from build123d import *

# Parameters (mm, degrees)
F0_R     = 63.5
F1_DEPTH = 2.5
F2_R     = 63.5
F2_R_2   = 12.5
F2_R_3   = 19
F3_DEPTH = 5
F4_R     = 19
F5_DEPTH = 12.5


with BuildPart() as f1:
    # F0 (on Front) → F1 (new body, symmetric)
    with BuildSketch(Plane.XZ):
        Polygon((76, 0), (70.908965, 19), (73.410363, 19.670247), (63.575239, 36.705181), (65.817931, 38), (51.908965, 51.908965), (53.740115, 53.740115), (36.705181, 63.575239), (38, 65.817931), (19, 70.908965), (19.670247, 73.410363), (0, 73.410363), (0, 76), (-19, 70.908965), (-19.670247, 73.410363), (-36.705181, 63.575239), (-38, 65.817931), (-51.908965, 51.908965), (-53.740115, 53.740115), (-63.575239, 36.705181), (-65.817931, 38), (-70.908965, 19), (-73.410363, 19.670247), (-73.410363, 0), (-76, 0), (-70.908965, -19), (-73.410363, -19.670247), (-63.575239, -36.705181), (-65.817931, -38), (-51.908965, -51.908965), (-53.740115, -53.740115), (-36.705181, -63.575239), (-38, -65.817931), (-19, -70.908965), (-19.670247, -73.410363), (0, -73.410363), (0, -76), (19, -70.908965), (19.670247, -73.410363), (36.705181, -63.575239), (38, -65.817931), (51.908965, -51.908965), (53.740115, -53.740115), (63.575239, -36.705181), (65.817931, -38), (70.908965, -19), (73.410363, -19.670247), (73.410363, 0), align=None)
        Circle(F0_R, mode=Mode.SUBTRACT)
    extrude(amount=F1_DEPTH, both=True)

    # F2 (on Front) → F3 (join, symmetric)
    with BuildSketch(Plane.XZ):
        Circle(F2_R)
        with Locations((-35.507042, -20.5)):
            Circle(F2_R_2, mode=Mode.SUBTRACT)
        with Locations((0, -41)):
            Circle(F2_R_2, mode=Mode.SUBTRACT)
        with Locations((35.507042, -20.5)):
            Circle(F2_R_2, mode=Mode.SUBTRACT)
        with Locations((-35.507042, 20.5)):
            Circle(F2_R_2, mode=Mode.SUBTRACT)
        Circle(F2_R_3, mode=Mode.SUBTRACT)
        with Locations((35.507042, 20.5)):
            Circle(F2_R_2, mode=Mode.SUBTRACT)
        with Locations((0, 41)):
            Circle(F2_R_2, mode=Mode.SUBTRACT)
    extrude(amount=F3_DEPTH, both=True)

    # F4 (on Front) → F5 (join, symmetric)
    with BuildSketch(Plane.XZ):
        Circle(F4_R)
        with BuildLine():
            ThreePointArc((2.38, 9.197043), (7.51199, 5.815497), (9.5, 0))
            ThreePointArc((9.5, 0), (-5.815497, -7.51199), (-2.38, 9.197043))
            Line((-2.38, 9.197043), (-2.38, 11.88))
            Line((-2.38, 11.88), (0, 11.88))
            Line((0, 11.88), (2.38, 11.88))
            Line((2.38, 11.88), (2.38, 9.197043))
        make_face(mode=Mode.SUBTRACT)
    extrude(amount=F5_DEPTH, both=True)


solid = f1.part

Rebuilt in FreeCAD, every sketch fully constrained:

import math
import FreeCAD as App
import Part
import Sketcher
from FreeCAD import Vector
Q = App.Units.Quantity

doc = App.newDocument("Part")
body = doc.addObject("PartDesign::Body", "Body")

# Sketch on XZ plane
sketch1 = body.newObject("Sketcher::SketchObject", "Sketch")
sketch1.AttachmentSupport = (doc.getObject("XZ_Plane"), [""])
sketch1.MapMode = "FlatFace"
sketch1.addGeometry(Part.LineSegment(Vector(76, 0, 0), Vector(70.908965, 19, 0)), False)
sketch1.addGeometry(Part.LineSegment(Vector(70.908965, 19, 0), Vector(73.410363, 19.670247, 0)), False)
sketch1.addGeometry(Part.LineSegment(Vector(73.410363, 19.670247, 0), Vector(63.575239, 36.705181, 0)), False)
sketch1.addGeometry(Part.LineSegment(Vector(63.575239, 36.705181, 0), Vector(65.817931, 38, 0)), False)
sketch1.addGeometry(Part.LineSegment(Vector(65.817931, 38, 0), Vector(51.908965, 51.908965, 0)), False)
sketch1.addGeometry(Part.LineSegment(Vector(51.908965, 51.908965, 0), Vector(53.740115, 53.740115, 0)), False)
sketch1.addGeometry(Part.LineSegment(Vector(53.740115, 53.740115, 0), Vector(36.705181, 63.575239, 0)), False)
sketch1.addGeometry(Part.LineSegment(Vector(36.705181, 63.575239, 0), Vector(38, 65.817931, 0)), False)
sketch1.addGeometry(Part.LineSegment(Vector(38, 65.817931, 0), Vector(19, 70.908965, 0)), False)
sketch1.addGeometry(Part.LineSegment(Vector(19, 70.908965, 0), Vector(19.670247, 73.410363, 0)), False)
sketch1.addGeometry(Part.LineSegment(Vector(19.670247, 73.410363, 0), Vector(0, 73.410363, 0)), False)
sketch1.addGeometry(Part.LineSegment(Vector(0, 73.410363, 0), Vector(0, 76, 0)), False)
sketch1.addGeometry(Part.LineSegment(Vector(0, 76, 0), Vector(-19, 70.908965, 0)), False)
sketch1.addGeometry(Part.LineSegment(Vector(-19, 70.908965, 0), Vector(-19.670247, 73.410363, 0)), False)
sketch1.addGeometry(Part.LineSegment(Vector(-19.670247, 73.410363, 0), Vector(-36.705181, 63.575239, 0)), False)
sketch1.addGeometry(Part.LineSegment(Vector(-36.705181, 63.575239, 0), Vector(-38, 65.817931, 0)), False)
sketch1.addGeometry(Part.LineSegment(Vector(-38, 65.817931, 0), Vector(-51.908965, 51.908965, 0)), False)
sketch1.addGeometry(Part.LineSegment(Vector(-51.908965, 51.908965, 0), Vector(-53.740115, 53.740115, 0)), False)
sketch1.addGeometry(Part.LineSegment(Vector(-53.740115, 53.740115, 0), Vector(-63.575239, 36.705181, 0)), False)
sketch1.addGeometry(Part.LineSegment(Vector(-63.575239, 36.705181, 0), Vector(-65.817931, 38, 0)), False)
sketch1.addGeometry(Part.LineSegment(Vector(-65.817931, 38, 0), Vector(-70.908965, 19, 0)), False)
sketch1.addGeometry(Part.LineSegment(Vector(-70.908965, 19, 0), Vector(-73.410363, 19.670247, 0)), False)
sketch1.addGeometry(Part.LineSegment(Vector(-73.410363, 19.670247, 0), Vector(-73.410363, 0, 0)), False)
sketch1.addGeometry(Part.LineSegment(Vector(-73.410363, 0, 0), Vector(-76, 0, 0)), False)
sketch1.addGeometry(Part.LineSegment(Vector(-76, 0, 0), Vector(-70.908965, -19, 0)), False)
sketch1.addGeometry(Part.LineSegment(Vector(-70.908965, -19, 0), Vector(-73.410363, -19.670247, 0)), False)
sketch1.addGeometry(Part.LineSegment(Vector(-73.410363, -19.670247, 0), Vector(-63.575239, -36.705181, 0)), False)
sketch1.addGeometry(Part.LineSegment(Vector(-63.575239, -36.705181, 0), Vector(-65.817931, -38, 0)), False)
sketch1.addGeometry(Part.LineSegment(Vector(-65.817931, -38, 0), Vector(-51.908965, -51.908965, 0)), False)
sketch1.addGeometry(Part.LineSegment(Vector(-51.908965, -51.908965, 0), Vector(-53.740115, -53.740115, 0)), False)
sketch1.addGeometry(Part.LineSegment(Vector(-53.740115, -53.740115, 0), Vector(-36.705181, -63.575239, 0)), False)
sketch1.addGeometry(Part.LineSegment(Vector(-36.705181, -63.575239, 0), Vector(-38, -65.817931, 0)), False)
sketch1.addGeometry(Part.LineSegment(Vector(-38, -65.817931, 0), Vector(-19, -70.908965, 0)), False)
sketch1.addGeometry(Part.LineSegment(Vector(-19, -70.908965, 0), Vector(-19.670247, -73.410363, 0)), False)
sketch1.addGeometry(Part.LineSegment(Vector(-19.670247, -73.410363, 0), Vector(0, -73.410363, 0)), False)
sketch1.addGeometry(Part.LineSegment(Vector(0, -73.410363, 0), Vector(0, -76, 0)), False)
sketch1.addGeometry(Part.LineSegment(Vector(0, -76, 0), Vector(19, -70.908965, 0)), False)
sketch1.addGeometry(Part.LineSegment(Vector(19, -70.908965, 0), Vector(19.670247, -73.410363, 0)), False)
sketch1.addGeometry(Part.LineSegment(Vector(19.670247, -73.410363, 0), Vector(36.705181, -63.575239, 0)), False)
sketch1.addGeometry(Part.LineSegment(Vector(36.705181, -63.575239, 0), Vector(38, -65.817931, 0)), False)
sketch1.addGeometry(Part.LineSegment(Vector(38, -65.817931, 0), Vector(51.908965, -51.908965, 0)), False)
sketch1.addGeometry(Part.LineSegment(Vector(51.908965, -51.908965, 0), Vector(53.740115, -53.740115, 0)), False)
sketch1.addGeometry(Part.LineSegment(Vector(53.740115, -53.740115, 0), Vector(63.575239, -36.705181, 0)), False)
sketch1.addGeometry(Part.LineSegment(Vector(63.575239, -36.705181, 0), Vector(65.817931, -38, 0)), False)
sketch1.addGeometry(Part.LineSegment(Vector(65.817931, -38, 0), Vector(70.908965, -19, 0)), False)
sketch1.addGeometry(Part.LineSegment(Vector(70.908965, -19, 0), Vector(73.410363, -19.670247, 0)), False)
sketch1.addGeometry(Part.LineSegment(Vector(73.410363, -19.670247, 0), Vector(73.410363, 0, 0)), False)
sketch1.addGeometry(Part.LineSegment(Vector(73.410363, 0, 0), Vector(76, 0, 0)), False)
sketch1.addGeometry(Part.Circle(Vector(0, 0, 0), Vector(0, 0, 1), 63.5), False)
sketch1.addConstraint(Sketcher.Constraint("Coincident", 0, 2, 1, 1))
sketch1.addConstraint(Sketcher.Constraint("Coincident", 1, 2, 2, 1))
sketch1.addConstraint(Sketcher.Constraint("Coincident", 2, 2, 3, 1))
sketch1.addConstraint(Sketcher.Constraint("Coincident", 3, 2, 4, 1))
sketch1.addConstraint(Sketcher.Constraint("Coincident", 4, 2, 5, 1))
sketch1.addConstraint(Sketcher.Constraint("Coincident", 5, 2, 6, 1))
sketch1.addConstraint(Sketcher.Constraint("Coincident", 6, 2, 7, 1))
sketch1.addConstraint(Sketcher.Constraint("Coincident", 7, 2, 8, 1))
sketch1.addConstraint(Sketcher.Constraint("Coincident", 8, 2, 9, 1))
sketch1.addConstraint(Sketcher.Constraint("Coincident", 9, 2, 10, 1))
sketch1.addConstraint(Sketcher.Constraint("Coincident", 10, 2, 11, 1))
sketch1.addConstraint(Sketcher.Constraint("Coincident", 11, 2, 12, 1))
sketch1.addConstraint(Sketcher.Constraint("Coincident", 12, 2, 13, 1))
sketch1.addConstraint(Sketcher.Constraint("Coincident", 13, 2, 14, 1))
sketch1.addConstraint(Sketcher.Constraint("Coincident", 14, 2, 15, 1))
sketch1.addConstraint(Sketcher.Constraint("Coincident", 15, 2, 16, 1))
sketch1.addConstraint(Sketcher.Constraint("Coincident", 16, 2, 17, 1))
sketch1.addConstraint(Sketcher.Constraint("Coincident", 17, 2, 18, 1))
sketch1.addConstraint(Sketcher.Constraint("Coincident", 18, 2, 19, 1))
sketch1.addConstraint(Sketcher.Constraint("Coincident", 19, 2, 20, 1))
sketch1.addConstraint(Sketcher.Constraint("Coincident", 20, 2, 21, 1))
sketch1.addConstraint(Sketcher.Constraint("Coincident", 21, 2, 22, 1))
sketch1.addConstraint(Sketcher.Constraint("Coincident", 22, 2, 23, 1))
sketch1.addConstraint(Sketcher.Constraint("Coincident", 23, 2, 24, 1))
sketch1.addConstraint(Sketcher.Constraint("Coincident", 24, 2, 25, 1))
sketch1.addConstraint(Sketcher.Constraint("Coincident", 25, 2, 26, 1))
sketch1.addConstraint(Sketcher.Constraint("Coincident", 26, 2, 27, 1))
sketch1.addConstraint(Sketcher.Constraint("Coincident", 27, 2, 28, 1))
sketch1.addConstraint(Sketcher.Constraint("Coincident", 28, 2, 29, 1))
sketch1.addConstraint(Sketcher.Constraint("Coincident", 29, 2, 30, 1))
sketch1.addConstraint(Sketcher.Constraint("Coincident", 30, 2, 31, 1))
sketch1.addConstraint(Sketcher.Constraint("Coincident", 31, 2, 32, 1))
sketch1.addConstraint(Sketcher.Constraint("Coincident", 32, 2, 33, 1))
sketch1.addConstraint(Sketcher.Constraint("Coincident", 33, 2, 34, 1))
sketch1.addConstraint(Sketcher.Constraint("Coincident", 34, 2, 35, 1))
sketch1.addConstraint(Sketcher.Constraint("Coincident", 35, 2, 36, 1))
sketch1.addConstraint(Sketcher.Constraint("Coincident", 36, 2, 37, 1))
sketch1.addConstraint(Sketcher.Constraint("Coincident", 37, 2, 38, 1))
sketch1.addConstraint(Sketcher.Constraint("Coincident", 38, 2, 39, 1))
sketch1.addConstraint(Sketcher.Constraint("Coincident", 39, 2, 40, 1))
sketch1.addConstraint(Sketcher.Constraint("Coincident", 40, 2, 41, 1))
sketch1.addConstraint(Sketcher.Constraint("Coincident", 41, 2, 42, 1))
sketch1.addConstraint(Sketcher.Constraint("Coincident", 42, 2, 43, 1))
sketch1.addConstraint(Sketcher.Constraint("Coincident", 43, 2, 44, 1))
sketch1.addConstraint(Sketcher.Constraint("Coincident", 44, 2, 45, 1))
sketch1.addConstraint(Sketcher.Constraint("Coincident", 45, 2, 46, 1))
sketch1.addConstraint(Sketcher.Constraint("Coincident", 46, 2, 47, 1))
sketch1.addConstraint(Sketcher.Constraint("Coincident", 47, 2, 0, 1))
sketch1.addConstraint(Sketcher.Constraint("Horizontal", 10))
sketch1.addConstraint(Sketcher.Constraint("Vertical", 11))
sketch1.addConstraint(Sketcher.Constraint("Vertical", 22))
sketch1.addConstraint(Sketcher.Constraint("Horizontal", 23))
sketch1.addConstraint(Sketcher.Constraint("Horizontal", 34))
sketch1.addConstraint(Sketcher.Constraint("Vertical", 35))
sketch1.addConstraint(Sketcher.Constraint("Vertical", 46))
sketch1.addConstraint(Sketcher.Constraint("Horizontal", 47))
sketch1.addConstraint(Sketcher.Constraint("Coincident", 48, 3, -1, 1))
sketch1.addConstraint(Sketcher.Constraint("Symmetric", 0, 2, 24, 2, -1, 1))
sketch1.addConstraint(Sketcher.Constraint("Symmetric", 1, 2, 25, 2, -1, 1))
sketch1.addConstraint(Sketcher.Constraint("Symmetric", 2, 2, 26, 2, -1, 1))
sketch1.addConstraint(Sketcher.Constraint("Symmetric", 3, 2, 27, 2, -1, 1))
sketch1.addConstraint(Sketcher.Constraint("Symmetric", 4, 2, 28, 2, -1, 1))
sketch1.addConstraint(Sketcher.Constraint("Symmetric", 5, 2, 29, 2, -1, 1))
sketch1.addConstraint(Sketcher.Constraint("Symmetric", 6, 2, 30, 2, -1, 1))
sketch1.addConstraint(Sketcher.Constraint("Symmetric", 7, 2, 31, 2, -1, 1))
sketch1.addConstraint(Sketcher.Constraint("Symmetric", 8, 2, 32, 2, -1, 1))
sketch1.addConstraint(Sketcher.Constraint("Symmetric", 9, 2, 33, 2, -1, 1))
sketch1.addConstraint(Sketcher.Constraint("Symmetric", 11, 2, 35, 2, -1, 1))
sketch1.addConstraint(Sketcher.Constraint("Symmetric", 12, 2, 36, 2, -1, 1))
sketch1.addConstraint(Sketcher.Constraint("Symmetric", 13, 2, 37, 2, -1, 1))
sketch1.addConstraint(Sketcher.Constraint("Symmetric", 14, 2, 38, 2, -1, 1))
sketch1.addConstraint(Sketcher.Constraint("Symmetric", 15, 2, 39, 2, -1, 1))
sketch1.addConstraint(Sketcher.Constraint("Symmetric", 16, 2, 40, 2, -1, 1))
sketch1.addConstraint(Sketcher.Constraint("Symmetric", 17, 2, 41, 2, -1, 1))
sketch1.addConstraint(Sketcher.Constraint("Symmetric", 18, 2, 42, 2, -1, 1))
sketch1.addConstraint(Sketcher.Constraint("Symmetric", 19, 2, 43, 2, -1, 1))
sketch1.addConstraint(Sketcher.Constraint("Symmetric", 20, 2, 44, 2, -1, 1))
sketch1.addConstraint(Sketcher.Constraint("Symmetric", 21, 2, 45, 2, -1, 1))
sketch1.addConstraint(Sketcher.Constraint("Symmetric", 23, 2, 47, 2, -1, 1))
sketch1.addConstraint(Sketcher.Constraint("Symmetric", 8, 2, 12, 2, -2))
sketch1.addConstraint(Sketcher.Constraint("Symmetric", 9, 2, 13, 2, -2))
sketch1.addConstraint(Sketcher.Constraint("Symmetric", 6, 2, 14, 2, -2))
sketch1.addConstraint(Sketcher.Constraint("Symmetric", 7, 2, 15, 2, -2))
sketch1.addConstraint(Sketcher.Constraint("Symmetric", 4, 2, 16, 2, -2))
sketch1.addConstraint(Sketcher.Constraint("Symmetric", 5, 2, 17, 2, -2))
sketch1.addConstraint(Sketcher.Constraint("Symmetric", 2, 2, 18, 2, -2))
sketch1.addConstraint(Sketcher.Constraint("Symmetric", 3, 2, 19, 2, -2))
sketch1.addConstraint(Sketcher.Constraint("Symmetric", 0, 2, 20, 2, -2))
sketch1.addConstraint(Sketcher.Constraint("Symmetric", 1, 2, 21, 2, -2))
sketch1.addConstraint(Sketcher.Constraint("PointOnObject", 10, 2, -2))
sketch1.addConstraint(Sketcher.Constraint("PointOnObject", 22, 2, -1))
sketch1.addConstraint(Sketcher.Constraint("Perpendicular", 0, 1))
sketch1.addConstraint(Sketcher.Constraint("Perpendicular", 2, 3))
sketch1.addConstraint(Sketcher.Constraint("Perpendicular", 4, 5))
sketch1.addConstraint(Sketcher.Constraint("Perpendicular", 6, 7))
sketch1.addConstraint(Sketcher.Constraint("Perpendicular", 8, 9))
sketch1.addConstraint(Sketcher.Constraint("Parallel", 1, 12))
sketch1.addConstraint(Sketcher.Constraint("Perpendicular", 12, 13))
sketch1.addConstraint(Sketcher.Constraint("Parallel", 3, 14))
sketch1.addConstraint(Sketcher.Constraint("Perpendicular", 14, 15))
sketch1.addConstraint(Sketcher.Constraint("Parallel", 5, 16))
sketch1.addConstraint(Sketcher.Constraint("Perpendicular", 16, 17))
sketch1.addConstraint(Sketcher.Constraint("Parallel", 7, 18))
sketch1.addConstraint(Sketcher.Constraint("Parallel", 9, 20))
sketch1.addConstraint(Sketcher.Constraint("Equal", 47, 11))
sketch1.addConstraint(Sketcher.Constraint("Equal", 34, 22))
sketch1.addConstraint(Sketcher.Constraint("Equal", 0, 2))
sketch1.addConstraint(Sketcher.Constraint("Equal", 1, 3))
sketch1.addConstraint(Sketcher.Constraint("Equal", 2, 4))
sketch1.addConstraint(Sketcher.Constraint("Equal", 3, 5))
sketch1.addConstraint(Sketcher.Constraint("Equal", 4, 6))
sketch1.addConstraint(Sketcher.Constraint("Diameter", 48, Q("127 mm")))
sketch1.addConstraint(Sketcher.Constraint("Angle", 0, Q("105.000001 deg")))
sketch1.addConstraint(Sketcher.Constraint("DistanceY", -1, 1, 0, 2, Q("19 mm")))
pad1 = body.newObject("PartDesign::Pad", "Pad")
pad1.Profile = sketch1
pad1.Length = 5
pad1.Midplane = True

# Sketch on XZ plane
sketch2 = body.newObject("Sketcher::SketchObject", "Sketch001")
sketch2.AttachmentSupport = (doc.getObject("XZ_Plane"), [""])
sketch2.MapMode = "FlatFace"
sketch2.addGeometry(Part.Circle(Vector(0, 0, 0), Vector(0, 0, 1), 63.5), False)
sketch2.addGeometry(Part.Circle(Vector(0, -41, 0), Vector(0, 0, 1), 12.5), False)
sketch2.addGeometry(Part.Circle(Vector(-35.507042, -20.5, 0), Vector(0, 0, 1), 12.5), False)
sketch2.addGeometry(Part.Circle(Vector(0, 0, 0), Vector(0, 0, 1), 19), False)
sketch2.addGeometry(Part.Circle(Vector(35.507042, -20.5, 0), Vector(0, 0, 1), 12.5), False)
sketch2.addGeometry(Part.Circle(Vector(-35.507042, 20.5, 0), Vector(0, 0, 1), 12.5), False)
sketch2.addGeometry(Part.Circle(Vector(0, 41, 0), Vector(0, 0, 1), 12.5), False)
sketch2.addGeometry(Part.Circle(Vector(35.507042, 20.5, 0), Vector(0, 0, 1), 12.5), False)
sketch2.addConstraint(Sketcher.Constraint("Coincident", 0, 3, -1, 1))
sketch2.addConstraint(Sketcher.Constraint("Coincident", 3, 3, -1, 1))
sketch2.addConstraint(Sketcher.Constraint("Equal", 1, 2))
sketch2.addConstraint(Sketcher.Constraint("Equal", 2, 4))
sketch2.addConstraint(Sketcher.Constraint("Equal", 4, 5))
sketch2.addConstraint(Sketcher.Constraint("Equal", 5, 6))
sketch2.addConstraint(Sketcher.Constraint("Equal", 6, 7))
sketch2.addConstraint(Sketcher.Constraint("Symmetric", 4, 3, 5, 3, -1, 1))
sketch2.addConstraint(Sketcher.Constraint("Symmetric", 1, 3, 6, 3, -1, 1))
sketch2.addConstraint(Sketcher.Constraint("Symmetric", 2, 3, 7, 3, -1, 1))
sketch2.addConstraint(Sketcher.Constraint("Symmetric", 2, 3, 4, 3, -2))
sketch2.addConstraint(Sketcher.Constraint("PointOnObject", 1, 3, -2))
sketch2.addConstraint(Sketcher.Constraint("Diameter", 0, Q("127 mm")))
sketch2.addConstraint(Sketcher.Constraint("Diameter", 1, Q("25 mm")))
sketch2.addConstraint(Sketcher.Constraint("Diameter", 3, Q("38 mm")))
sketch2.addConstraint(Sketcher.Constraint("DistanceY", 1, 3, -1, 1, Q("41 mm")))
sketch2.addConstraint(Sketcher.Constraint("DistanceY", 2, 3, 5, 3, Q("41 mm")))
sketch2.addConstraint(Sketcher.Constraint("DistanceX", 2, 3, -1, 1, Q("35.507042 mm")))
pad2 = body.newObject("PartDesign::Pad", "Pad001")
pad2.Profile = sketch2
pad2.Length = 10
pad2.Midplane = True

# Sketch on XZ plane
sketch3 = body.newObject("Sketcher::SketchObject", "Sketch002")
sketch3.AttachmentSupport = (doc.getObject("XZ_Plane"), [""])
sketch3.MapMode = "FlatFace"
sketch3.addGeometry(Part.Circle(Vector(0, 0, 0), Vector(0, 0, 1), 19), False)
sketch3.addGeometry(Part.LineSegment(Vector(2.38, 11.88, 0), Vector(2.38, 9.197043, 0)), False)
sketch3.addGeometry(Part.ArcOfCircle(Part.Circle(Vector(0, 0, 0), Vector(0, 0, 1), 9.5), math.radians(0.000001), math.radians(75.49134)), False)
sketch3.addGeometry(Part.ArcOfCircle(Part.Circle(Vector(0, 0, 0), Vector(0, 0, 1), 9.5), math.radians(104.508659), math.radians(360)), False)
sketch3.addGeometry(Part.LineSegment(Vector(-2.38, 9.197043, 0), Vector(-2.38, 11.88, 0)), False)
sketch3.addGeometry(Part.LineSegment(Vector(-2.38, 11.88, 0), Vector(2.38, 11.88, 0)), False)
sketch3.addConstraint(Sketcher.Constraint("Coincident", 1, 2, 2, 2))
sketch3.addConstraint(Sketcher.Constraint("Tangent", 2, 1, 3, 2))
sketch3.addConstraint(Sketcher.Constraint("Coincident", 3, 1, 4, 1))
sketch3.addConstraint(Sketcher.Constraint("Coincident", 4, 2, 5, 1))
sketch3.addConstraint(Sketcher.Constraint("Coincident", 5, 2, 1, 1))
sketch3.addConstraint(Sketcher.Constraint("Vertical", 1))
sketch3.addConstraint(Sketcher.Constraint("Vertical", 4))
sketch3.addConstraint(Sketcher.Constraint("Horizontal", 5))
sketch3.addConstraint(Sketcher.Constraint("Coincident", 0, 3, -1, 1))
sketch3.addConstraint(Sketcher.Constraint("Coincident", 2, 3, -1, 1))
sketch3.addConstraint(Sketcher.Constraint("Equal", 2, 3))
sketch3.addConstraint(Sketcher.Constraint("PointOnObject", 2, 1, -1))
sketch3.addConstraint(Sketcher.Constraint("Horizontal", 1, 2, 3, 1))
sketch3.addConstraint(Sketcher.Constraint("Diameter", 0, Q("38 mm")))
sketch3.addConstraint(Sketcher.Constraint("Radius", 2, Q("9.5 mm")))
sketch3.addConstraint(Sketcher.Constraint("DistanceX", 5, 1, 5, 2, Q("4.76 mm")))
sketch3.addConstraint(Sketcher.Constraint("DistanceY", -1, 1, 4, 2, Q("11.88 mm")))
pad3 = body.newObject("PartDesign::Pad", "Pad002")
pad3.Profile = sketch3
pad3.Length = 25
pad3.Midplane = True

doc.recompute()
